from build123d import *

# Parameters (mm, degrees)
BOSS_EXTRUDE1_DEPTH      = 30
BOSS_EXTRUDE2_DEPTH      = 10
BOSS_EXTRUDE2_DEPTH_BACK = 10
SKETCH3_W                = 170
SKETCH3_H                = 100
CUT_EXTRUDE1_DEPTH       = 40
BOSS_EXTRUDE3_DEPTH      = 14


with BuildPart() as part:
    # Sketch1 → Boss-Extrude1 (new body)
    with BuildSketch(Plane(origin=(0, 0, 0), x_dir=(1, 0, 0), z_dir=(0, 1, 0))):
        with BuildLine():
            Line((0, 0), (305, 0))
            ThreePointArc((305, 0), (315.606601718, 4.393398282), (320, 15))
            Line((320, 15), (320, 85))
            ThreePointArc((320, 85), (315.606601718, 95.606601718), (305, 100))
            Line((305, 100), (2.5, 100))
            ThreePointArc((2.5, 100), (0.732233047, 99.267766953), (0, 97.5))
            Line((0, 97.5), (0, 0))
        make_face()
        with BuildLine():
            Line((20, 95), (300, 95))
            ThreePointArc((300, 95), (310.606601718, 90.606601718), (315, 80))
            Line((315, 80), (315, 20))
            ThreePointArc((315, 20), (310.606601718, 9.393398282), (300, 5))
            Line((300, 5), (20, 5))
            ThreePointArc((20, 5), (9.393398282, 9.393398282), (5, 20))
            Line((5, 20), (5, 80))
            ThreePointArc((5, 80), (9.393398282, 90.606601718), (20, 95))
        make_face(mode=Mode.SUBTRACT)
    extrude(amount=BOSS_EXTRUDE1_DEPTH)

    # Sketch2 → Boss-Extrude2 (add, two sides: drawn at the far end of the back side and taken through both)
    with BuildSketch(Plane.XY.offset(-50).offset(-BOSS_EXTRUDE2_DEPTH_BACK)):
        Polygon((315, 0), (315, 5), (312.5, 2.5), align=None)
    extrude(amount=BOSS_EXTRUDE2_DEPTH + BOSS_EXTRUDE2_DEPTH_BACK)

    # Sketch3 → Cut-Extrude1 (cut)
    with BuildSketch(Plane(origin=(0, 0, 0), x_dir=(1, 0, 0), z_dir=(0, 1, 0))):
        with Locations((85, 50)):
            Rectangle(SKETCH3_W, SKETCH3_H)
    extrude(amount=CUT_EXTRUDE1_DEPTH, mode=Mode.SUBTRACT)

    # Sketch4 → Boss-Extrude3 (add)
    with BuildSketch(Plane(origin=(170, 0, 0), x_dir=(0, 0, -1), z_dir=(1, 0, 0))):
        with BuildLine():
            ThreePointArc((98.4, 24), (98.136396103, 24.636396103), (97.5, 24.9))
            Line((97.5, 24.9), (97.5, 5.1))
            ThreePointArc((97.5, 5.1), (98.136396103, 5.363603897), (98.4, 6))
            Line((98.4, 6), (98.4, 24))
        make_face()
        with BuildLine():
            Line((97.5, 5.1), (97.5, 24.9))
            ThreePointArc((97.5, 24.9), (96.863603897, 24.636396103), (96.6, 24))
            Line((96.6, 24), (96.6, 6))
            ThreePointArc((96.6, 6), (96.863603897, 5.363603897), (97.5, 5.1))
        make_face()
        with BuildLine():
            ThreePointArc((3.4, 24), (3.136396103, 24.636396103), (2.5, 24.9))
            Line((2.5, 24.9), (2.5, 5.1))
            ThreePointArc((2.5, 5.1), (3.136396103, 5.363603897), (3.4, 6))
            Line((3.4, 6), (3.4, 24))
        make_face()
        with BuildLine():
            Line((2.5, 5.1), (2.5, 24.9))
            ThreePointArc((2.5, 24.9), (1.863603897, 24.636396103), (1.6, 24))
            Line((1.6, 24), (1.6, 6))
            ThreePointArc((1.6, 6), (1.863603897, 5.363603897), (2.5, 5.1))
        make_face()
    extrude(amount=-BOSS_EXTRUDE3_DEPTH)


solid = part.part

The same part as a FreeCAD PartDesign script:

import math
import FreeCAD as App
import Part
import Sketcher
from FreeCAD import Vector

doc = App.newDocument("Part")
body = doc.addObject("PartDesign::Body", "Body")

sketch1 = body.newObject("Sketcher::SketchObject", "Sketch")
sketch1.AttachmentSupport = (doc.getObject("XZ_Plane"), [""])
sketch1.MapMode = "FlatFace"
sketch1.addGeometry(Part.LineSegment(Vector(0, 0, 0), Vector(305, 0, 0)), False)
sketch1.addGeometry(Part.ArcOfCircle(Part.Circle(Vector(305, -15, 0), Vector(0, 0, 1), 15), math.radians(0), math.radians(90)), False)
sketch1.addGeometry(Part.LineSegment(Vector(320, -15, 0), Vector(320, -85, 0)), False)
sketch1.addGeometry(Part.ArcOfCircle(Part.Circle(Vector(305, -85, 0), Vector(0, 0, 1), 15), math.radians(-90), math.radians(0)), False)
sketch1.addGeometry(Part.LineSegment(Vector(305, -100, 0), Vector(2.5, -100, 0)), False)
sketch1.addGeometry(Part.ArcOfCircle(Part.Circle(Vector(2.5, -97.5, 0), Vector(0, 0, 1), 2.5), math.radians(180), math.radians(270)), False)
sketch1.addGeometry(Part.LineSegment(Vector(0, -97.5, 0), Vector(0, 0, 0)), False)
sketch1.addGeometry(Part.ArcOfCircle(Part.Circle(Vector(20, -80, 0), Vector(0, 0, 1), 15), math.radians(180), math.radians(270)), False)
sketch1.addGeometry(Part.LineSegment(Vector(20, -95, 0), Vector(300, -95, 0)), False)
sketch1.addGeometry(Part.ArcOfCircle(Part.Circle(Vector(300, -80, 0), Vector(0, 0, 1), 15), math.radians(-90), math.radians(0)), False)
sketch1.addGeometry(Part.LineSegment(Vector(315, -80, 0), Vector(315, -20, 0)), False)
sketch1.addGeometry(Part.ArcOfCircle(Part.Circle(Vector(300, -20, 0), Vector(0, 0, 1), 15), math.radians(0), math.radians(90)), False)
sketch1.addGeometry(Part.LineSegment(Vector(300, -5, 0), Vector(20, -5, 0)), False)
sketch1.addGeometry(Part.ArcOfCircle(Part.Circle(Vector(20, -20, 0), Vector(0, 0, 1), 15), math.radians(90), math.radians(180)), False)
sketch1.addGeometry(Part.LineSegment(Vector(5, -20, 0), Vector(5, -80, 0)), False)
sketch1.addConstraint(Sketcher.Constraint("Tangent", 0, 2, 1, 2))
sketch1.addConstraint(Sketcher.Constraint("Tangent", 1, 1, 2, 1))
sketch1.addConstraint(Sketcher.Constraint("Tangent", 2, 2, 3, 2))
sketch1.addConstraint(Sketcher.Constraint("Tangent", 3, 1, 4, 1))
sketch1.addConstraint(Sketcher.Constraint("Tangent", 4, 2, 5, 2))
sketch1.addConstraint(Sketcher.Constraint("Tangent", 5, 1, 6, 1))
sketch1.addConstraint(Sketcher.Constraint("Coincident", 6, 2, 0, 1))
sketch1.addConstraint(Sketcher.Constraint("Tangent", 7, 2, 8, 1))
sketch1.addConstraint(Sketcher.Constraint("Tangent", 8, 2, 9, 1))
sketch1.addConstraint(Sketcher.Constraint("Tangent", 9, 2, 10, 1))
sketch1.addConstraint(Sketcher.Constraint("Tangent", 10, 2, 11, 1))
sketch1.addConstraint(Sketcher.Constraint("Tangent", 11, 2, 12, 1))
sketch1.addConstraint(Sketcher.Constraint("Tangent", 12, 2, 13, 1))
sketch1.addConstraint(Sketcher.Constraint("Tangent", 13, 2, 14, 1))
sketch1.addConstraint(Sketcher.Constraint("Tangent", 14, 2, 7, 1))
sketch1.addConstraint(Sketcher.Constraint("Horizontal", 0))
sketch1.addConstraint(Sketcher.Constraint("Vertical", 2))
sketch1.addConstraint(Sketcher.Constraint("Horizontal", 4))
sketch1.addConstraint(Sketcher.Constraint("Vertical", 6))
sketch1.addConstraint(Sketcher.Constraint("Horizontal", 8))
sketch1.addConstraint(Sketcher.Constraint("Vertical", 10))
sketch1.addConstraint(Sketcher.Constraint("Horizontal", 12))
sketch1.addConstraint(Sketcher.Constraint("Vertical", 14))
sketch1.addConstraint(Sketcher.Constraint("Coincident", 6, 2, -1, 1))
sketch1.addConstraint(Sketcher.Constraint("Equal", 1, 3))
sketch1.addConstraint(Sketcher.Constraint("Equal", 3, 7))
sketch1.addConstraint(Sketcher.Constraint("Equal", 7, 9))
sketch1.addConstraint(Sketcher.Constraint("Equal", 9, 11))
sketch1.addConstraint(Sketcher.Constraint("Equal", 11, 13))
sketch1.addConstraint(Sketcher.Constraint("Radius", 1, 15.0))
sketch1.addConstraint(Sketcher.Constraint("Radius", 5, 2.5))
sketch1.addConstraint(Sketcher.Constraint("DistanceX", 0, 1, 0, 2, 305.0))
sketch1.addConstraint(Sketcher.Constraint("DistanceX", 8, 1, 8, 2, 280.0))
sketch1.addConstraint(Sketcher.Constraint("DistanceY", 2, 2, 2, 1, 70.0))
sketch1.addConstraint(Sketcher.Constraint("DistanceY", 10, 1, 10, 2, 60.0))
sketch1.addConstraint(Sketcher.Constraint("DistanceX", -1, 1, 7, 3, 20.0))
sketch1.addConstraint(Sketcher.Constraint("DistanceY", 7, 3, -1, 1, 80.0))
pad1 = body.newObject("PartDesign::Pad", "Pad")
pad1.Profile = sketch1
pad1.Length = 30
pad1.Reversed = True

sketch2 = body.newObject("Sketcher::SketchObject", "Sketch001")
sketch2.AttachmentSupport = (doc.getObject("XY_Plane"), [""])
sketch2.MapMode = "FlatFace"
sketch2.AttachmentOffset = App.Placement(Vector(0, 0, -50), App.Rotation())
sketch2.addGeometry(Part.LineSegment(Vector(315, 0, 0), Vector(315, 5, 0)), False)
sketch2.addGeometry(Part.LineSegment(Vector(315, 5, 0), Vector(312.5, 2.5, 0)), False)
sketch2.addGeometry(Part.LineSegment(Vector(312.5, 2.5, 0), Vector(315, 0, 0)), False)
sketch2.addConstraint(Sketcher.Constraint("Coincident", 0, 2, 1, 1))
sketch2.addConstraint(Sketcher.Constraint("Coincident", 1, 2, 2, 1))
sketch2.addConstraint(Sketcher.Constraint("Coincident", 2, 2, 0, 1))
sketch2.addConstraint(Sketcher.Constraint("Vertical", 0))
sketch2.addConstraint(Sketcher.Constraint("PointOnObject", 2, 2, -1))
sketch2.addConstraint(Sketcher.Constraint("Perpendicular", 1, 2))
sketch2.addConstraint(Sketcher.Constraint("Equal", 1, 2))
sketch2.addConstraint(Sketcher.Constraint("DistanceY", 0, 1, 0, 2, 5.0))
sketch2.addConstraint(Sketcher.Constraint("DistanceX", -1, 1, 0, 2, 315.0))
pad2 = body.newObject("PartDesign::Pad", "Pad001")
pad2.Profile = sketch2
pad2.Type = "TwoLengths"
pad2.Length = 10
pad2.Length2 = 10

sketch3 = body.newObject("Sketcher::SketchObject", "Sketch002")
sketch3.AttachmentSupport = (doc.getObject("XZ_Plane"), [""])
sketch3.MapMode = "FlatFace"
sketch3.addGeometry(Part.LineSegment(Vector(0, -100, 0), Vector(0, 0, 0)), False)
sketch3.addGeometry(Part.LineSegment(Vector(0, 0, 0), Vector(170, 0, 0)), False)
sketch3.addGeometry(Part.LineSegment(Vector(170, 0, 0), Vector(170, -100, 0)), False)
sketch3.addGeometry(Part.LineSegment(Vector(170, -100, 0), Vector(0, -100, 0)), False)
sketch3.addConstraint(Sketcher.Constraint("Coincident", 0, 2, 1, 1))
sketch3.addConstraint(Sketcher.Constraint("Coincident", 1, 2, 2, 1))
sketch3.addConstraint(Sketcher.Constraint("Coincident", 2, 2, 3, 1))
sketch3.addConstraint(Sketcher.Constraint("Coincident", 3, 2, 0, 1))
sketch3.addConstraint(Sketcher.Constraint("Vertical", 0))
sketch3.addConstraint(Sketcher.Constraint("Horizontal", 1))
sketch3.addConstraint(Sketcher.Constraint("Vertical", 2))
sketch3.addConstraint(Sketcher.Constraint("Horizontal", 3))
sketch3.addConstraint(Sketcher.Constraint("Coincident", 0, 2, -1, 1))
sketch3.addConstraint(Sketcher.Constraint("DistanceX", 1, 1, 1, 2, 170.0))
sketch3.addConstraint(Sketcher.Constraint("DistanceY", 0, 1, 0, 2, 100.0))
pocket1 = body.newObject("PartDesign::Pocket", "Pocket")
pocket1.Profile = sketch3
pocket1.Length = 40

sketch4 = body.newObject("Sketcher::SketchObject", "Sketch003")
sketch4.AttachmentSupport = (doc.getObject("YZ_Plane"), [""])
sketch4.MapMode = "FlatFace"
sketch4.AttachmentOffset = App.Placement(Vector(0, 0, 170), App.Rotation())
sketch4.addGeometry(Part.ArcOfCircle(Part.Circle(Vector(24, -97.5, 0), Vector(0, 0, 1), 0.9), math.radians(-90), math.radians(0)), False)
sketch4.addGeometry(Part.ArcOfCircle(Part.Circle(Vector(24, -97.5, 0), Vector(0, 0, 1), 0.9), math.radians(0), math.radians(90)), False)
sketch4.addGeometry(Part.LineSegment(Vector(24, -96.6, 0), Vector(6, -96.6, 0)), False)
sketch4.addGeometry(Part.ArcOfCircle(Part.Circle(Vector(6, -97.5, 0), Vector(0, 0, 1), 0.9), math.radians(90), math.radians(180)), False)
sketch4.addGeometry(Part.ArcOfCircle(Part.Circle(Vector(6, -97.5, 0), Vector(0, 0, 1), 0.9), math.radians(180), math.radians(270)), False)
sketch4.addGeometry(Part.LineSegment(Vector(6, -98.4, 0), Vector(24, -98.4, 0)), False)
sketch4.addGeometry(Part.ArcOfCircle(Part.Circle(Vector(24, -2.5, 0), Vector(0, 0, 1), 0.9), math.radians(-90), math.radians(0)), False)
sketch4.addGeometry(Part.ArcOfCircle(Part.Circle(Vector(24, -2.5, 0), Vector(0, 0, 1), 0.9), math.radians(0), math.radians(90)), False)
sketch4.addGeometry(Part.LineSegment(Vector(24, -1.6, 0), Vector(6, -1.6, 0)), False)
sketch4.addGeometry(Part.ArcOfCircle(Part.Circle(Vector(6, -2.5, 0), Vector(0, 0, 1), 0.9), math.radians(90), math.radians(180)), False)
sketch4.addGeometry(Part.ArcOfCircle(Part.Circle(Vector(6, -2.5, 0), Vector(0, 0, 1), 0.9), math.radians(180), math.radians(270)), False)
sketch4.addGeometry(Part.LineSegment(Vector(6, -3.4, 0), Vector(24, -3.4, 0)), False)
sketch4.addConstraint(Sketcher.Constraint("Tangent", 0, 2, 1, 1))
sketch4.addConstraint(Sketcher.Constraint("Tangent", 1, 2, 2, 1))
sketch4.addConstraint(Sketcher.Constraint("Tangent", 2, 2, 3, 1))
sketch4.addConstraint(Sketcher.Constraint("Tangent", 3, 2, 4, 1))
sketch4.addConstraint(Sketcher.Constraint("Tangent", 4, 2, 5, 1))
sketch4.addConstraint(Sketcher.Constraint("Tangent", 5, 2, 0, 1))
sketch4.addConstraint(Sketcher.Constraint("Tangent", 6, 2, 7, 1))
sketch4.addConstraint(Sketcher.Constraint("Tangent", 7, 2, 8, 1))
sketch4.addConstraint(Sketcher.Constraint("Tangent", 8, 2, 9, 1))
sketch4.addConstraint(Sketcher.Constraint("Tangent", 9, 2, 10, 1))
sketch4.addConstraint(Sketcher.Constraint("Tangent", 10, 2, 11, 1))
sketch4.addConstraint(Sketcher.Constraint("Tangent", 11, 2, 6, 1))
sketch4.addConstraint(Sketcher.Constraint("Horizontal", 2))
sketch4.addConstraint(Sketcher.Constraint("Horizontal", 5))
sketch4.addConstraint(Sketcher.Constraint("Horizontal", 8))
sketch4.addConstraint(Sketcher.Constraint("Horizontal", 11))
sketch4.addConstraint(Sketcher.Constraint("Equal", 0, 1))
sketch4.addConstraint(Sketcher.Constraint("Equal", 1, 3))
sketch4.addConstraint(Sketcher.Constraint("Equal", 4, 6))
sketch4.addConstraint(Sketcher.Constraint("Equal", 6, 7))
sketch4.addConstraint(Sketcher.Constraint("Equal", 7, 9))
sketch4.addConstraint(Sketcher.Constraint("Horizontal", 4, 3, 0, 2))
sketch4.addConstraint(Sketcher.Constraint("Horizontal", 0, 2, 3, 2))
sketch4.addConstraint(Sketcher.Constraint("Horizontal", 10, 3, 6, 2))
sketch4.addConstraint(Sketcher.Constraint("Horizontal", 6, 2, 9, 2))
sketch4.addConstraint(Sketcher.Constraint("Vertical", 1, 3, 6, 3))
sketch4.addConstraint(Sketcher.Constraint("Vertical", 4, 3, 9, 3))
sketch4.addConstraint(Sketcher.Constraint("Radius", 0, 0.9))
sketch4.addConstraint(Sketcher.Constraint("DistanceX", 2, 2, 2, 1, 18.0))
sketch4.addConstraint(Sketcher.Constraint("DistanceX", -1, 1, 0, 3, 24.0))
sketch4.addConstraint(Sketcher.Constraint("DistanceY", 0, 3, 6, 3, 95.0))
sketch4.addConstraint(Sketcher.Constraint("DistanceY", 0, 3, -1, 1, 97.5))
pad3 = body.newObject("PartDesign::Pad", "Pad002")
pad3.Profile = sketch4
pad3.Length = 14
pad3.Reversed = True

doc.recompute()
